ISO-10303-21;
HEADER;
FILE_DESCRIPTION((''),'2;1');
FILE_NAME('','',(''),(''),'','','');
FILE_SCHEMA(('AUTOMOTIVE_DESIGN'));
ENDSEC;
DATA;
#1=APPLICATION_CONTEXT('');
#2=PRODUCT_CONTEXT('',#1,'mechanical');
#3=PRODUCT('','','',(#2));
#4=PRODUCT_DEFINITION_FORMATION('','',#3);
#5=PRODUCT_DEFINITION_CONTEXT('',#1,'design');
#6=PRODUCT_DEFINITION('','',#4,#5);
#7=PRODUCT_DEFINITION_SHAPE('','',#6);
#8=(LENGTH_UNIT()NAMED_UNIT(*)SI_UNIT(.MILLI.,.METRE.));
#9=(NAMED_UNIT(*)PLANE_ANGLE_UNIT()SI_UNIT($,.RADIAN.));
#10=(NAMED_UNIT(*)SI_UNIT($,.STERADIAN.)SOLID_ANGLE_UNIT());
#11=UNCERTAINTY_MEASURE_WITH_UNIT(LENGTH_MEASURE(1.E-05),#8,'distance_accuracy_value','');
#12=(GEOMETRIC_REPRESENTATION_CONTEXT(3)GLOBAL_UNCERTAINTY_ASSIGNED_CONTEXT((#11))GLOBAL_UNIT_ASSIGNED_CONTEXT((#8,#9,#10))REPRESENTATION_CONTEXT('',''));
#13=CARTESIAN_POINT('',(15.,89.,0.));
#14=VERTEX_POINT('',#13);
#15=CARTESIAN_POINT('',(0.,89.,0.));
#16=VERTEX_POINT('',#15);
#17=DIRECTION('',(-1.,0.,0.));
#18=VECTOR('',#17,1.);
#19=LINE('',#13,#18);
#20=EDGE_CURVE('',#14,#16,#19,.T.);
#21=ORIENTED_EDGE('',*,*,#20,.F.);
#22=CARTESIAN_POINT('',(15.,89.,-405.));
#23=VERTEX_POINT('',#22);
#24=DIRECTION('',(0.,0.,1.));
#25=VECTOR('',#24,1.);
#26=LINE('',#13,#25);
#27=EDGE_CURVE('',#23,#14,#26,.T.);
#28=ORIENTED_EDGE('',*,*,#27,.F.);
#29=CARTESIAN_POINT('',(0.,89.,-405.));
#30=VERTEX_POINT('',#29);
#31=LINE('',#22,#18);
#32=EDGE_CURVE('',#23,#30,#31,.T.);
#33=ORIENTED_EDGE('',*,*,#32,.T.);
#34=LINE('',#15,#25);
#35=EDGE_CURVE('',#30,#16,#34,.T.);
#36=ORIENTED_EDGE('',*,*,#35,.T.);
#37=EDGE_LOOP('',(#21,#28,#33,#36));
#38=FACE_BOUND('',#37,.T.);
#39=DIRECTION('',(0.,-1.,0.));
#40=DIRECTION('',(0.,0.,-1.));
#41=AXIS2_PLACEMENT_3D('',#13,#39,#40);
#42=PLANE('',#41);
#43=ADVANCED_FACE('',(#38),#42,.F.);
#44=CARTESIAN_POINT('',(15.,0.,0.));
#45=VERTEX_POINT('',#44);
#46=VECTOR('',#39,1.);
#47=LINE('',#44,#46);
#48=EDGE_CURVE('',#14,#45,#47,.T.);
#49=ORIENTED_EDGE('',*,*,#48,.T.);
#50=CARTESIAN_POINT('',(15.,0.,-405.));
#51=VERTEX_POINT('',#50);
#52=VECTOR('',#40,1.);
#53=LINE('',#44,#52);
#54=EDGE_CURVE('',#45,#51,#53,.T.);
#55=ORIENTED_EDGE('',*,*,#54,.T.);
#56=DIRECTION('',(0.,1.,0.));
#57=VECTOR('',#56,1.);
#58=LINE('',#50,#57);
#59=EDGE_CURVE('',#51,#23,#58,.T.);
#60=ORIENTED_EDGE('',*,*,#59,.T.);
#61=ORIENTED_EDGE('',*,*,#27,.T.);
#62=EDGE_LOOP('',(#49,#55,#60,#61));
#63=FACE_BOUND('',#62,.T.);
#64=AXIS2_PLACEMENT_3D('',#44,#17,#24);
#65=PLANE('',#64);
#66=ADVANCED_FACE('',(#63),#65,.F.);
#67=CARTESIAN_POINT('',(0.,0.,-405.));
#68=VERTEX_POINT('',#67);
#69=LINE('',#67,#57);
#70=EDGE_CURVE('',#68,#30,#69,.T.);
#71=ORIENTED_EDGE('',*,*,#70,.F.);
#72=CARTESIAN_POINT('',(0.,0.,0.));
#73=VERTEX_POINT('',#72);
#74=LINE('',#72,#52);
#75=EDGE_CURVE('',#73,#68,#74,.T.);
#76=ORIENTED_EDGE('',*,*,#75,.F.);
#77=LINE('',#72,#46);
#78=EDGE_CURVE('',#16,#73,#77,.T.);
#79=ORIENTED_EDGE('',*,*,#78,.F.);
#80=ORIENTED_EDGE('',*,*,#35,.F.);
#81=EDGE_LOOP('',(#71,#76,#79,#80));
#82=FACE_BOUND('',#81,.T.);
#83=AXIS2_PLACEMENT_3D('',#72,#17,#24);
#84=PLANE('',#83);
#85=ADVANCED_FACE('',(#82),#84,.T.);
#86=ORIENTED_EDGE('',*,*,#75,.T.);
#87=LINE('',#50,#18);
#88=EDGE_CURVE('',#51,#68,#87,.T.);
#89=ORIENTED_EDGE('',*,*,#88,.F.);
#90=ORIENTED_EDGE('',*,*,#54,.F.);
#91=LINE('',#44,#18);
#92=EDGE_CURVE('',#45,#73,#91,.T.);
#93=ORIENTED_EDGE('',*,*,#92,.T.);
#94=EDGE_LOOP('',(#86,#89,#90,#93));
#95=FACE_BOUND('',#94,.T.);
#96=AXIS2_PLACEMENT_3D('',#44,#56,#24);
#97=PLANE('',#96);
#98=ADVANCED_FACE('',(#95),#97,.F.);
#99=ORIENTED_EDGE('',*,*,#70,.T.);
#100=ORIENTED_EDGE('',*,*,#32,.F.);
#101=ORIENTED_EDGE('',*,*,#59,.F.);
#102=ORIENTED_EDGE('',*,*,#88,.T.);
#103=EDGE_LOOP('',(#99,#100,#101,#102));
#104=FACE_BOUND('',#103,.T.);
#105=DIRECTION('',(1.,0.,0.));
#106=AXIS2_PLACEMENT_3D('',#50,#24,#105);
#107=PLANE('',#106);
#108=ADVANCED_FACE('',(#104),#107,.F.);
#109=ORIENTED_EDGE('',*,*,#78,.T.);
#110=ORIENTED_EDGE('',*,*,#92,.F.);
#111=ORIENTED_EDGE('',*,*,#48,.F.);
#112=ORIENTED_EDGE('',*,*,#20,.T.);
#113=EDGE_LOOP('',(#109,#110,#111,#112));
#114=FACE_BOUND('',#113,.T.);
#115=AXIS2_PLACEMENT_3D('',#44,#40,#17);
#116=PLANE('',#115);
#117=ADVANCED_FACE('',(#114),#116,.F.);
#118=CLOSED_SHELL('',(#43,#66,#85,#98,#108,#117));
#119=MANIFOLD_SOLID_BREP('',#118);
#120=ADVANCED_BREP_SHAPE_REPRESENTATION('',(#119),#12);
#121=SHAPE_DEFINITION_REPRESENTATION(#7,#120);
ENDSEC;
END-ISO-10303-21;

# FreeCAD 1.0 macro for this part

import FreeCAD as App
import Part
import Sketcher
from FreeCAD import Vector

doc = App.newDocument("Part")
params = doc.addObject("Spreadsheet::Sheet", "Params")
for row, (alias, value) in enumerate([
    ("sketch1_width", "89 mm"),
    ("sketch1_height", "405 mm"),
    ("pad1_length", "15 mm"),
], start=1):
    params.set(f"A{row}", alias)
    params.set(f"B{row}", "=" + value)
    params.setAlias(f"B{row}", alias)

body = doc.addObject("PartDesign::Body", "Body")

sketch1 = body.newObject("Sketcher::SketchObject", "Sketch")
sketch1.AttachmentSupport = (doc.getObject("YZ_Plane"), [""])
sketch1.MapMode = "FlatFace"
sketch1.addGeometry([
    Part.LineSegment(Vector(89, 0, 0), Vector(0, 0, 0)),
    Part.LineSegment(Vector(0, 0, 0), Vector(0, -405, 0)),
    Part.LineSegment(Vector(0, -405, 0), Vector(89, -405, 0)),
    Part.LineSegment(Vector(89, -405, 0), Vector(89, 0, 0)),
], False)
sketch1.addConstraint([
    Sketcher.Constraint("Coincident", 0, 2, 1, 1),
    Sketcher.Constraint("Coincident", 1, 2, 2, 1),
    Sketcher.Constraint("Coincident", 2, 2, 3, 1),
    Sketcher.Constraint("Coincident", 3, 2, 0, 1),
    Sketcher.Constraint("Horizontal", 0),
    Sketcher.Constraint("Vertical", 1),
    Sketcher.Constraint("Horizontal", 2),
    Sketcher.Constraint("Vertical", 3),
    Sketcher.Constraint("Coincident", 0, 2, -1, 1),
    Sketcher.Constraint("DistanceX", 0, 2, 0, 1, 89.0),
    Sketcher.Constraint("DistanceY", 1, 2, 1, 1, 405.0),
])
sketch1.setExpression("Constraints[9]", "Params.sketch1_width")
sketch1.setExpression("Constraints[10]", "Params.sketch1_height")
pad1 = body.newObject("PartDesign::Pad", "Pad")
pad1.Profile = sketch1
pad1.setExpression("Length", "Params.pad1_length")

doc.recompute()
